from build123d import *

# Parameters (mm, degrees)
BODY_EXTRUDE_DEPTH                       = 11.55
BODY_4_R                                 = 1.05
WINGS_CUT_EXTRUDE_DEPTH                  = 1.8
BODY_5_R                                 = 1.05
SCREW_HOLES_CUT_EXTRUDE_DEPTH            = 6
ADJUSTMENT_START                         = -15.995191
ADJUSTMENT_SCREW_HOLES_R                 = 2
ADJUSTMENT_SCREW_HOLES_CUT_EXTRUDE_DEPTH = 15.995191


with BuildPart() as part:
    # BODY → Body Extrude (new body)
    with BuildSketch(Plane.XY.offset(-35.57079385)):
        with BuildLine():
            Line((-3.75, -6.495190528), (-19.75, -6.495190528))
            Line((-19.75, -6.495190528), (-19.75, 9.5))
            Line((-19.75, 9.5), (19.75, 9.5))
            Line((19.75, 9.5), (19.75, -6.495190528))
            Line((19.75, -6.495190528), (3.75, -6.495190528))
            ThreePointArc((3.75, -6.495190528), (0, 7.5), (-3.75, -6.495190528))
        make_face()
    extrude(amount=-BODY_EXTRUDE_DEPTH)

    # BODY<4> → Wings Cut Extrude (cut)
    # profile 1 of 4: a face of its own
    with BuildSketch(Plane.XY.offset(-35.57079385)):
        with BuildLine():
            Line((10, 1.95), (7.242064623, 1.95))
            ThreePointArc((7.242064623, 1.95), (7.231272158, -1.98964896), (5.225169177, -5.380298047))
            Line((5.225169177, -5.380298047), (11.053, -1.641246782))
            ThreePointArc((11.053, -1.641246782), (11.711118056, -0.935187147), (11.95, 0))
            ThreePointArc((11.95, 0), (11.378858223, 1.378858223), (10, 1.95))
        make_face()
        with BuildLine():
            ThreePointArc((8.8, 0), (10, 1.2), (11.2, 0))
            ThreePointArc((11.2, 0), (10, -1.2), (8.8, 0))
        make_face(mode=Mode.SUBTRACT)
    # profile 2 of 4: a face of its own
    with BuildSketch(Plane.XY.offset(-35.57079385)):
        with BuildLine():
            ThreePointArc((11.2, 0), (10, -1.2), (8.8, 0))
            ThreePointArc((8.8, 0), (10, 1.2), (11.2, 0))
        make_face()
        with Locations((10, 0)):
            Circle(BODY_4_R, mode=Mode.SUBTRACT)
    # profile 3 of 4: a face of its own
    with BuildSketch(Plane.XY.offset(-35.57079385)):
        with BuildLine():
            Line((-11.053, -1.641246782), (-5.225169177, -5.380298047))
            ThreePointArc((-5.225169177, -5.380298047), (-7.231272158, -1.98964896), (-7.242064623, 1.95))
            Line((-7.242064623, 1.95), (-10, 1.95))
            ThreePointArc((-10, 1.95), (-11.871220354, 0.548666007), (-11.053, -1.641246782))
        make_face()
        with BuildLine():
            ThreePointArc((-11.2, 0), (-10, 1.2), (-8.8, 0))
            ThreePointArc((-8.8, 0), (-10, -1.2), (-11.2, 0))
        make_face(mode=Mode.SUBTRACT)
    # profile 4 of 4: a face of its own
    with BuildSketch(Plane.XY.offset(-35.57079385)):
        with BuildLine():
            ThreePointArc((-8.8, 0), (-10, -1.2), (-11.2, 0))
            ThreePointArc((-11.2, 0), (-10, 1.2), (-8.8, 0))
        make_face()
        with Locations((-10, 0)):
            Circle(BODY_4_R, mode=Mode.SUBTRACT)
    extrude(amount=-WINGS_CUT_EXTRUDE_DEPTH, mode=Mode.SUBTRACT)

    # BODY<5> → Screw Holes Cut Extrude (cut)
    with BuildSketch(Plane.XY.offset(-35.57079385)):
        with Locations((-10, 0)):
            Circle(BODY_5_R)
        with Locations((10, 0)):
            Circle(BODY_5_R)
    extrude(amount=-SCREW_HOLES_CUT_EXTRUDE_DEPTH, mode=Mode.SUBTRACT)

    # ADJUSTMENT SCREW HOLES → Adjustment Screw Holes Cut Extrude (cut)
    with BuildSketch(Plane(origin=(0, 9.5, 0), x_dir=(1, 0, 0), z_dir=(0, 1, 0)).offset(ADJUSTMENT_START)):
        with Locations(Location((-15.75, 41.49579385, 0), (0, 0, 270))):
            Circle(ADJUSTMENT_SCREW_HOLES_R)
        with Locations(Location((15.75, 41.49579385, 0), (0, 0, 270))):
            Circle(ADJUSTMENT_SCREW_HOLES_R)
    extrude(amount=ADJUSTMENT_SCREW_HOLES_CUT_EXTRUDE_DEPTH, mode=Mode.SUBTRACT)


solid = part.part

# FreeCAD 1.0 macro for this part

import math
import FreeCAD as App
import Part
import Sketcher
from FreeCAD import Vector

doc = App.newDocument("Part")
body = doc.addObject("PartDesign::Body", "Body")

sketch1 = body.newObject("Sketcher::SketchObject", "Sketch")
sketch1.AttachmentSupport = (doc.getObject("XY_Plane"), [""])
sketch1.MapMode = "FlatFace"
sketch1.AttachmentOffset = App.Placement(Vector(0, 0, -35.570794), App.Rotation())
sketch1.addGeometry(Part.LineSegment(Vector(-19.75, -6.495191, 0), Vector(-3.75, -6.495191, 0)), False)
sketch1.addGeometry(Part.ArcOfCircle(Part.Circle(Vector(0, 0, 0), Vector(0, 0, 1), 7.5), math.radians(-60), math.radians(240)), False)
sketch1.addGeometry(Part.LineSegment(Vector(3.75, -6.495191, 0), Vector(19.75, -6.495191, 0)), False)
sketch1.addGeometry(Part.LineSegment(Vector(19.75, -6.495191, 0), Vector(19.75, 9.5, 0)), False)
sketch1.addGeometry(Part.LineSegment(Vector(19.75, 9.5, 0), Vector(-19.75, 9.5, 0)), False)
sketch1.addGeometry(Part.LineSegment(Vector(-19.75, 9.5, 0), Vector(-19.75, -6.495191, 0)), False)
sketch1.addConstraint(Sketcher.Constraint("Coincident", 0, 2, 1, 2))
sketch1.addConstraint(Sketcher.Constraint("Coincident", 1, 1, 2, 1))
sketch1.addConstraint(Sketcher.Constraint("Coincident", 2, 2, 3, 1))
sketch1.addConstraint(Sketcher.Constraint("Coincident", 3, 2, 4, 1))
sketch1.addConstraint(Sketcher.Constraint("Coincident", 4, 2, 5, 1))
sketch1.addConstraint(Sketcher.Constraint("Coincident", 5, 2, 0, 1))
sketch1.addConstraint(Sketcher.Constraint("Horizontal", 0))
sketch1.addConstraint(Sketcher.Constraint("Horizontal", 2))
sketch1.addConstraint(Sketcher.Constraint("Vertical", 3))
sketch1.addConstraint(Sketcher.Constraint("Horizontal", 4))
sketch1.addConstraint(Sketcher.Constraint("Vertical", 5))
sketch1.addConstraint(Sketcher.Constraint("Coincident", 1, 3, -1, 1))
sketch1.addConstraint(Sketcher.Constraint("Symmetric", 2, 2, 5, 2, -2))
sketch1.addConstraint(Sketcher.Constraint("Radius", 1, 7.5))
sketch1.addConstraint(Sketcher.Constraint("DistanceX", 0, 1, 0, 2, 16.0))
sketch1.addConstraint(Sketcher.Constraint("DistanceX", 4, 2, 4, 1, 39.5))
sketch1.addConstraint(Sketcher.Constraint("DistanceY", -1, 1, 3, 2, 9.5))
pad1 = body.newObject("PartDesign::Pad", "Pad")
pad1.Profile = sketch1
pad1.Length = 11.55
pad1.Reversed = True

sketch2 = body.newObject("Sketcher::SketchObject", "Sketch001")
sketch2.AttachmentSupport = (doc.getObject("XY_Plane"), [""])
sketch2.MapMode = "FlatFace"
sketch2.AttachmentOffset = App.Placement(Vector(0, 0, -35.570794), App.Rotation())
sketch2.addGeometry(Part.LineSegment(Vector(10, 1.95, 0), Vector(7.242065, 1.95, 0)), False)
sketch2.addGeometry(Part.ArcOfCircle(Part.Circle(Vector(0, 0, 0), Vector(0, 0, 1), 7.5), math.radians(-45.83802), math.radians(15.070062)), False)
sketch2.addGeometry(Part.LineSegment(Vector(5.225169, -5.380298, 0), Vector(11.053, -1.641247, 0)), False)
sketch2.addGeometry(Part.ArcOfCircle(Part.Circle(Vector(10, 0, 0), Vector(0, 0, 1), 1.95), math.radians(-57.316361), math.radians(0)), False)
sketch2.addGeometry(Part.ArcOfCircle(Part.Circle(Vector(10, 0, 0), Vector(0, 0, 1), 1.95), math.radians(0), math.radians(90)), False)
sketch2.addGeometry(Part.Circle(Vector(10, 0, 0), Vector(0, 0, 1), 1.05), False)
sketch2.addGeometry(Part.LineSegment(Vector(-11.053, -1.641247, 0), Vector(-5.225169, -5.380298, 0)), False)
sketch2.addGeometry(Part.ArcOfCircle(Part.Circle(Vector(0, 0, 0), Vector(0, 0, 1), 7.5), math.radians(164.929938), math.radians(225.83802)), False)
sketch2.addGeometry(Part.LineSegment(Vector(-7.242065, 1.95, 0), Vector(-10, 1.95, 0)), False)
sketch2.addGeometry(Part.ArcOfCircle(Part.Circle(Vector(-10, 0, 0), Vector(0, 0, 1), 1.95), math.radians(90), math.radians(237.316361)), False)
sketch2.addGeometry(Part.Circle(Vector(-10, 0, 0), Vector(0, 0, 1), 1.05), False)
sketch2.addConstraint(Sketcher.Constraint("Coincident", 0, 2, 1, 2))
sketch2.addConstraint(Sketcher.Constraint("Coincident", 1, 1, 2, 1))
sketch2.addConstraint(Sketcher.Constraint("Tangent", 2, 2, 3, 1))
sketch2.addConstraint(Sketcher.Constraint("Tangent", 3, 2, 4, 1))
sketch2.addConstraint(Sketcher.Constraint("Tangent", 4, 2, 0, 1))
sketch2.addConstraint(Sketcher.Constraint("Coincident", 6, 2, 7, 2))
sketch2.addConstraint(Sketcher.Constraint("Coincident", 7, 1, 8, 1))
sketch2.addConstraint(Sketcher.Constraint("Tangent", 8, 2, 9, 1))
sketch2.addConstraint(Sketcher.Constraint("Tangent", 9, 2, 6, 1))
sketch2.addConstraint(Sketcher.Constraint("Horizontal", 0))
sketch2.addConstraint(Sketcher.Constraint("Horizontal", 8))
sketch2.addConstraint(Sketcher.Constraint("Coincident", 1, 3, -1, 1))
sketch2.addConstraint(Sketcher.Constraint("Coincident", 7, 3, -1, 1))
sketch2.addConstraint(Sketcher.Constraint("Coincident", 5, 3, 3, 3))
sketch2.addConstraint(Sketcher.Constraint("Coincident", 10, 3, 9, 3))
sketch2.addConstraint(Sketcher.Constraint("Equal", 3, 4))
sketch2.addConstraint(Sketcher.Constraint("Equal", 1, 7))
sketch2.addConstraint(Sketcher.Constraint("Equal", 4, 9))
sketch2.addConstraint(Sketcher.Constraint("Equal", 5, 10))
sketch2.addConstraint(Sketcher.Constraint("Symmetric", 3, 3, 9, 3, -1, 1))
sketch2.addConstraint(Sketcher.Constraint("Symmetric", 2, 2, 9, 2, -2))
sketch2.addConstraint(Sketcher.Constraint("PointOnObject", 3, 2, -1))
sketch2.addConstraint(Sketcher.Constraint("Diameter", 5, 2.1))
sketch2.addConstraint(Sketcher.Constraint("Radius", 1, 7.5))
sketch2.addConstraint(Sketcher.Constraint("Radius", 3, 1.95))
sketch2.addConstraint(Sketcher.Constraint("DistanceX", -1, 1, 3, 3, 10.0))
sketch2.addConstraint(Sketcher.Constraint("DistanceX", -1, 1, 2, 2, 11.053))
pocket1 = body.newObject("PartDesign::Pocket", "Pocket")
pocket1.Profile = sketch2
pocket1.Length = 1.8

sketch3 = body.newObject("Sketcher::SketchObject", "Sketch002")
sketch3.AttachmentSupport = (doc.getObject("XY_Plane"), [""])
sketch3.MapMode = "FlatFace"
sketch3.AttachmentOffset = App.Placement(Vector(0, 0, -35.570794), App.Rotation())
sketch3.addGeometry(Part.Circle(Vector(-10, 0, 0), Vector(0, 0, 1), 1.05), False)
sketch3.addGeometry(Part.Circle(Vector(10, 0, 0), Vector(0, 0, 1), 1.05), False)
sketch3.addConstraint(Sketcher.Constraint("Equal", 0, 1))
sketch3.addConstraint(Sketcher.Constraint("Symmetric", 0, 3, 1, 3, -1, 1))
sketch3.addConstraint(Sketcher.Constraint("PointOnObject", 0, 3, -1))
sketch3.addConstraint(Sketcher.Constraint("Diameter", 0, 2.1))
sketch3.addConstraint(Sketcher.Constraint("DistanceX", 0, 3, -1, 1, 10.0))
pocket2 = body.newObject("PartDesign::Pocket", "Pocket001")
pocket2.Profile = sketch3
pocket2.Length = 6

sketch4 = body.newObject("Sketcher::SketchObject", "Sketch003")
sketch4.AttachmentSupport = (doc.getObject("XZ_Plane"), [""])
sketch4.MapMode = "FlatFace"
sketch4.AttachmentOffset = App.Placement(Vector(0, 0, 6.495191), App.Rotation())
sketch4.addGeometry(Part.Circle(Vector(-15.75, -41.495794, 0), Vector(0, 0, 1), 2), False)
sketch4.addGeometry(Part.Circle(Vector(15.75, -41.495794, 0), Vector(0, 0, 1), 2), False)
sketch4.addConstraint(Sketcher.Constraint("Equal", 0, 1))
sketch4.addConstraint(Sketcher.Constraint("Symmetric", 0, 3, 1, 3, -2))
sketch4.addConstraint(Sketcher.Constraint("Diameter", 0, 4.0))
sketch4.addConstraint(Sketcher.Constraint("DistanceX", 0, 3, 1, 3, 31.5))
sketch4.addConstraint(Sketcher.Constraint("DistanceY", 0, 3, -1, 1, 41.495794))
pocket3 = body.newObject("PartDesign::Pocket", "Pocket002")
pocket3.Profile = sketch4
pocket3.Length = 15.995191

doc.recompute()
